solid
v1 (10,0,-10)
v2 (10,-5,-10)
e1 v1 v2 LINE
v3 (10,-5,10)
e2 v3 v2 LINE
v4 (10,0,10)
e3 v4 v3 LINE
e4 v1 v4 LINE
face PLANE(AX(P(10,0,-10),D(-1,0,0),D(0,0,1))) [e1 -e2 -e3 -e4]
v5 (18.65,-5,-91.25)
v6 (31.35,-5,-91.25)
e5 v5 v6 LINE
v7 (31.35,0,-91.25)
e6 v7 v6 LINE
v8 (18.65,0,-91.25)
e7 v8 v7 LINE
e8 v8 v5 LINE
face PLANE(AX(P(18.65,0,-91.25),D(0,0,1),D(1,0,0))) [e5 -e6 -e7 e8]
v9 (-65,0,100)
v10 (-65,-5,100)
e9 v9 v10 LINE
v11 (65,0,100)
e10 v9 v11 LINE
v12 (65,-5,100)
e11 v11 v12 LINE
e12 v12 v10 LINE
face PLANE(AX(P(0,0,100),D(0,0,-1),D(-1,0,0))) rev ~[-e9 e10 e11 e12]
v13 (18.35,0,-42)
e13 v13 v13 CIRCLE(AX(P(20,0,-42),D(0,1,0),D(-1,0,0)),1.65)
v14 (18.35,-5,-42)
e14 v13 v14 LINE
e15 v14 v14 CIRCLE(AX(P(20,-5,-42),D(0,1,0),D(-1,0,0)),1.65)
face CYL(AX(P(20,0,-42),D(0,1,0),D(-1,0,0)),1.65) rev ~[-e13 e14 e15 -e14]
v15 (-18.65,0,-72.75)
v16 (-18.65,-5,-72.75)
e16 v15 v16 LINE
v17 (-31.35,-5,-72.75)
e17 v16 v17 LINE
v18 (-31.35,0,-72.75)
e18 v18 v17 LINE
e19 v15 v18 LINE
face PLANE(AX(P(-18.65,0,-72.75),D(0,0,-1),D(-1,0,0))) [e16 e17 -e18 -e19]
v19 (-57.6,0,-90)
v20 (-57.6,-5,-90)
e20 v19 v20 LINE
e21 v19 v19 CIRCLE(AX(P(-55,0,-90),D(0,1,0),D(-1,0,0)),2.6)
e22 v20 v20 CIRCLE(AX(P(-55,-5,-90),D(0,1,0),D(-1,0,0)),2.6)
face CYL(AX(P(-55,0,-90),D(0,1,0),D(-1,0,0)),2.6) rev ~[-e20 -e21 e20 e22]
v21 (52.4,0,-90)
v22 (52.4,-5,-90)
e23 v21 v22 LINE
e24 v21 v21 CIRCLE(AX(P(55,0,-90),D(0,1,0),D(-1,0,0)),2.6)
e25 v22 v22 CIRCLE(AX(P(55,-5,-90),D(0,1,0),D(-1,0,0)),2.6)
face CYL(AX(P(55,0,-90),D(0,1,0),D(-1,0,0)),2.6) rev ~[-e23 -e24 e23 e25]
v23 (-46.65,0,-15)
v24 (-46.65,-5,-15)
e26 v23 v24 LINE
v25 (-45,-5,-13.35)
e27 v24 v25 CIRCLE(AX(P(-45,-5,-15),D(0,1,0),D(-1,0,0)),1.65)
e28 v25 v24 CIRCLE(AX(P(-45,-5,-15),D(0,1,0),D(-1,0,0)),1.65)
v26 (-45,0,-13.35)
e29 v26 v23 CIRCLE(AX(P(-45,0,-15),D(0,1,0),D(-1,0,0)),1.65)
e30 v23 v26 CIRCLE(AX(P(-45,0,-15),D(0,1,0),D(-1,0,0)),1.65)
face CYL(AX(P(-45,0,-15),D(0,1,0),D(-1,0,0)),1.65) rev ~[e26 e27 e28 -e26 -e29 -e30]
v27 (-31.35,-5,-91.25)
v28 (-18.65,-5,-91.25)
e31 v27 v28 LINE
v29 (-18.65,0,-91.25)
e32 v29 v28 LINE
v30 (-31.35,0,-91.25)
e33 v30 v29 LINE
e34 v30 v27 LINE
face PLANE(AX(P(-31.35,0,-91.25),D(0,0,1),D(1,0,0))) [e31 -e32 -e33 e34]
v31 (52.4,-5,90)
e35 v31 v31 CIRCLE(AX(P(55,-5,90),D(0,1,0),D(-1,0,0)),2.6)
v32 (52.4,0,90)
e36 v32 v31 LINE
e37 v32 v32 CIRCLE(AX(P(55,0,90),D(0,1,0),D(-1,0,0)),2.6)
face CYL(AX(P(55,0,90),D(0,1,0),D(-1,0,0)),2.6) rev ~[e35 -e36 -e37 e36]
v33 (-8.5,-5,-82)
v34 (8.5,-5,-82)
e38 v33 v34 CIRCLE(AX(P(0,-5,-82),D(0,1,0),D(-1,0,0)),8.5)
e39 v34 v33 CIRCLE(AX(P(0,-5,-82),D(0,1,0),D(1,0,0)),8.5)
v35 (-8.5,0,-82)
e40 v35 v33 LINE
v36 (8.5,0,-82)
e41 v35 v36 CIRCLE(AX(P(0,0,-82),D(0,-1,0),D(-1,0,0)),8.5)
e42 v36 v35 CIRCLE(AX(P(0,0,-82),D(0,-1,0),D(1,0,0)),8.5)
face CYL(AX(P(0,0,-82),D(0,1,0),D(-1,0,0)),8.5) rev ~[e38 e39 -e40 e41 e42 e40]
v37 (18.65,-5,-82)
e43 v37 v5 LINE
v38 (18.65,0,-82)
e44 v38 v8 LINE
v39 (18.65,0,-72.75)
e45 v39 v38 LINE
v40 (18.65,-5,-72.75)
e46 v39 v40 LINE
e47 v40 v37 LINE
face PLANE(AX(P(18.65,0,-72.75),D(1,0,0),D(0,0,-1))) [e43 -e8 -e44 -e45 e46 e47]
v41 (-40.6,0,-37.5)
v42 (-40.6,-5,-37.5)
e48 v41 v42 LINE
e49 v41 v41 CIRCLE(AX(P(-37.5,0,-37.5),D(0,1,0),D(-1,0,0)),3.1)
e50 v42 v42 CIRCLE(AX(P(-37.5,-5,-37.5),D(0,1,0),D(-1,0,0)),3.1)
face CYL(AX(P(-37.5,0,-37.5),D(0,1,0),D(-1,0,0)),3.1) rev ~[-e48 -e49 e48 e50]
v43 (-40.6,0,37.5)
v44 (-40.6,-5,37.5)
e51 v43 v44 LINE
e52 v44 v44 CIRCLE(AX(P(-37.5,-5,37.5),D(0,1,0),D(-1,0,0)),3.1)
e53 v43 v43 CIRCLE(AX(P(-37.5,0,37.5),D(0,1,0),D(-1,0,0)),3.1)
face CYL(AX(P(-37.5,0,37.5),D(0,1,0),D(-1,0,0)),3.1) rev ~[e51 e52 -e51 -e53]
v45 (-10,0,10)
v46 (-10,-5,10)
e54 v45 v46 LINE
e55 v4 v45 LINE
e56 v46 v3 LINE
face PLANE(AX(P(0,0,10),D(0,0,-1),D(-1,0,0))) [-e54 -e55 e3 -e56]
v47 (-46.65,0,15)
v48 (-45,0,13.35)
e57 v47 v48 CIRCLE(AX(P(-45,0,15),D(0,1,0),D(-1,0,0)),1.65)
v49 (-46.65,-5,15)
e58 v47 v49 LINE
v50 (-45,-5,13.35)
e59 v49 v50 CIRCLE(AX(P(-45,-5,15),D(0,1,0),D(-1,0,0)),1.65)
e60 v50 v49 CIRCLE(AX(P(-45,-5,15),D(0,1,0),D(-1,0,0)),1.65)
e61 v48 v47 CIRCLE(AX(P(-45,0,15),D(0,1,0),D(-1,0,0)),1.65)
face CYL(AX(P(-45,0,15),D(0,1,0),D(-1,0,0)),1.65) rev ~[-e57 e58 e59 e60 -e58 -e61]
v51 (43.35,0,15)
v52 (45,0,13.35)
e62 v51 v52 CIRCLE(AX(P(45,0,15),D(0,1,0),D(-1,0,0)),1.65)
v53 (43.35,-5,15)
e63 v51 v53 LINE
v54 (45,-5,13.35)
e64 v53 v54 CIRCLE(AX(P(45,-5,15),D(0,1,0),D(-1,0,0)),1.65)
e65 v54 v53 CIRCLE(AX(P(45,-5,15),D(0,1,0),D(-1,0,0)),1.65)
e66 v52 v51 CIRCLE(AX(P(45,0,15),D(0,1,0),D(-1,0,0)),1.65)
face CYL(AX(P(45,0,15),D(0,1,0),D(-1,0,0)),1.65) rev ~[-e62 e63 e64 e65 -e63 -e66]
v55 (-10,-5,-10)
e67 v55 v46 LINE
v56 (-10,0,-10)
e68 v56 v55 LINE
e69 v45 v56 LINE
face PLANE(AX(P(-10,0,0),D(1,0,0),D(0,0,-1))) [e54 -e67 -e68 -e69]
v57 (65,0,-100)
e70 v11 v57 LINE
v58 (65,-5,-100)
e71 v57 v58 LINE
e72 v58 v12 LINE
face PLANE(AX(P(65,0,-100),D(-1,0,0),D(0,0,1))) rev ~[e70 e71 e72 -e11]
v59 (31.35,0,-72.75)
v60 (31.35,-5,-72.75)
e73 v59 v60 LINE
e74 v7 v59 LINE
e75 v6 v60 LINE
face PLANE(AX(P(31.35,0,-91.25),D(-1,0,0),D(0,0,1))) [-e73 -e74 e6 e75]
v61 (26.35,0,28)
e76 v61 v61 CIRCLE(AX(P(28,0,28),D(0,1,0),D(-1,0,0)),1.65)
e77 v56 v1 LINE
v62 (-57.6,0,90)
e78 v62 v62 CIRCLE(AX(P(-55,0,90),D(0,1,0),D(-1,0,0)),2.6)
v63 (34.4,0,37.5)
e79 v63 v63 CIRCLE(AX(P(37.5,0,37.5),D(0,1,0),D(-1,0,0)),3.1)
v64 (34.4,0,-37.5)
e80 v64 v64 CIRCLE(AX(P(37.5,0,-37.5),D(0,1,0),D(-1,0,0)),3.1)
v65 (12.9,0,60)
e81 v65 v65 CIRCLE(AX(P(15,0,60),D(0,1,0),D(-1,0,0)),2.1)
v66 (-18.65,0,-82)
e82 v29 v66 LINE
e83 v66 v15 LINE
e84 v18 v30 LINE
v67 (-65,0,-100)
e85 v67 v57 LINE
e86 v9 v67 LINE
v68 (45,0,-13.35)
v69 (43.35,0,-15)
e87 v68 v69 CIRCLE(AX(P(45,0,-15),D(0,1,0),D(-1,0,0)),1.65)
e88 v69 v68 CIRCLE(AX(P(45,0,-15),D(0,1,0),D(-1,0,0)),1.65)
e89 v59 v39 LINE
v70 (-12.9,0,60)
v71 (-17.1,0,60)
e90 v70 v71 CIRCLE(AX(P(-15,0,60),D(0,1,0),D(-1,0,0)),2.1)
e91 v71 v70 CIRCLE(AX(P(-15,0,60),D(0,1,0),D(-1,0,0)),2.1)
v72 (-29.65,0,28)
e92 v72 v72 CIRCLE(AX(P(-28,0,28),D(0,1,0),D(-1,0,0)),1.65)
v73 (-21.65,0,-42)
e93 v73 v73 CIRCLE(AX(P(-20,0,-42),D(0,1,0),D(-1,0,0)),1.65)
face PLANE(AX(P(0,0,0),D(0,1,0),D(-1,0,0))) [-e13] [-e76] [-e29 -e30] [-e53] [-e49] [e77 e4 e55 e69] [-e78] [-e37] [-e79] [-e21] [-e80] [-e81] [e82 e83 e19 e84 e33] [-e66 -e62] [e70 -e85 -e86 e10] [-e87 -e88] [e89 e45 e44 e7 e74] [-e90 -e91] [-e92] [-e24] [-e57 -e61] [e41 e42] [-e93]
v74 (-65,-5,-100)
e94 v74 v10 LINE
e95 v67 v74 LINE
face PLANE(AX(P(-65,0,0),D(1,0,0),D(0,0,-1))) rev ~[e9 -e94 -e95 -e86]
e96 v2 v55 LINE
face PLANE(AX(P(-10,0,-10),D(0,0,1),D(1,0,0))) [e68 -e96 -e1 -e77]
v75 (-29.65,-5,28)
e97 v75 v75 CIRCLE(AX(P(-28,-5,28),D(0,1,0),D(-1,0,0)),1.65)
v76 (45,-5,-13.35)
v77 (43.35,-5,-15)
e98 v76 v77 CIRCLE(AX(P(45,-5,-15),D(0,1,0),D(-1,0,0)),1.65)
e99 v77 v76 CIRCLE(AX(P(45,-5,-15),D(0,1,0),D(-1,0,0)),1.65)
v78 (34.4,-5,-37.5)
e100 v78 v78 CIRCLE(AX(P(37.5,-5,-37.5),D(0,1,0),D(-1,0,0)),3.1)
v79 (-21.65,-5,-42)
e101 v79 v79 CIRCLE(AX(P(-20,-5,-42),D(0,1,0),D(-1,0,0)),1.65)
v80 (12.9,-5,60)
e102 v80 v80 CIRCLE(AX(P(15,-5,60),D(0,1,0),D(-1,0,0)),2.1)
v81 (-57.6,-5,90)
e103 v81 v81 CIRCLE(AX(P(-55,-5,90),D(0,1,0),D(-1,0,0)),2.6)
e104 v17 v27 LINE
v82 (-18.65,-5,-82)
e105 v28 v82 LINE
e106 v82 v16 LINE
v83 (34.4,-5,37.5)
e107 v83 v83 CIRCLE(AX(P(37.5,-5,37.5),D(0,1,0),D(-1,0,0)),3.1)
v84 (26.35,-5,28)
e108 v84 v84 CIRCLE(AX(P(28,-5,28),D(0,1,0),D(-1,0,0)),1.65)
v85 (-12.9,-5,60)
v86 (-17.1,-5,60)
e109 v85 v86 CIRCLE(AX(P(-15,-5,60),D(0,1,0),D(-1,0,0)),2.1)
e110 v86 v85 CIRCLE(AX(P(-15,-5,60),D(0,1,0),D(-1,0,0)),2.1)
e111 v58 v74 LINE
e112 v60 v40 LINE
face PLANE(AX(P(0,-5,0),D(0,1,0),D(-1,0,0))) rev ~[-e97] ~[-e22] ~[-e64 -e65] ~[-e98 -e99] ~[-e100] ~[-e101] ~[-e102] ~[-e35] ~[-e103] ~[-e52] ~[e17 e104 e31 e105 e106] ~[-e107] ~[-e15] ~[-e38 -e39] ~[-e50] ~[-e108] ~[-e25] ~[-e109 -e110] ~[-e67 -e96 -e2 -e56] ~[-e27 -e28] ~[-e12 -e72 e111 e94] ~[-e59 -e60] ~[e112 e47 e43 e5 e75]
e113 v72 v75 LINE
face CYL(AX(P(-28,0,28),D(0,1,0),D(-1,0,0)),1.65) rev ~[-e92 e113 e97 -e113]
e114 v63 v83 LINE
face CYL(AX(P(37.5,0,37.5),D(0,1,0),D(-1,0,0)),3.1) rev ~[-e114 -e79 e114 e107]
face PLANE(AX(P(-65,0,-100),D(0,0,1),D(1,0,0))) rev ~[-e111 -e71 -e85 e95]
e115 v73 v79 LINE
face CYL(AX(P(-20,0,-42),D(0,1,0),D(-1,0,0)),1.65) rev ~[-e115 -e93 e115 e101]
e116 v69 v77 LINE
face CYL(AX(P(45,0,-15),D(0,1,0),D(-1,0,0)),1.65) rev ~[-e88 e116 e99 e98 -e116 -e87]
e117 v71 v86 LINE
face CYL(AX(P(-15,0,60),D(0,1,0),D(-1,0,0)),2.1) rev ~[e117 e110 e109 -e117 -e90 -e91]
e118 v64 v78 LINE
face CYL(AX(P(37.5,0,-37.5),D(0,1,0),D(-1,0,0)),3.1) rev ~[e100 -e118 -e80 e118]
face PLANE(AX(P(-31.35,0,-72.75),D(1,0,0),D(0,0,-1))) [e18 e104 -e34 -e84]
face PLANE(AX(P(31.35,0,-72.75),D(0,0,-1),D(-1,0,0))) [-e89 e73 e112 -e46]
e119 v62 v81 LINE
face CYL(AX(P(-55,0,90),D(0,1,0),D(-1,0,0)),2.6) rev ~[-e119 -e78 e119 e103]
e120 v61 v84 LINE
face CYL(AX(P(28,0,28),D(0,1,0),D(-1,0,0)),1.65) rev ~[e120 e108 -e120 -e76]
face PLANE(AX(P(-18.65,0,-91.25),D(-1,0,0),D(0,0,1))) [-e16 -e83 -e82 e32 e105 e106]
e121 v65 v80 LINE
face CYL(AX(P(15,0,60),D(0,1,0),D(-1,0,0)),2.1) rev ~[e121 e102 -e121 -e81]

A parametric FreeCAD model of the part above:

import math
import FreeCAD as App
import Part
import Sketcher
from FreeCAD import Vector


def add_polygon(sketch, points):
    """Adds a closed chain of lines whose ends are joined by coincident constraints."""
    first, n = sketch.GeometryCount, len(points)
    for a, b in zip(points, points[1:] + points[:1]):
        sketch.addGeometry(Part.LineSegment(App.Vector(*a, 0), App.Vector(*b, 0)), False)
    for i in range(n):
        sketch.addConstraint(Sketcher.Constraint("Coincident", first + i, 2, first + (i + 1) % n, 1))

doc = App.newDocument("Part")
body = doc.addObject("PartDesign::Body", "Body")

# Sketch on XZ plane
sketch1 = doc.addObject("Sketcher::SketchObject", "Sketch")
body.addObject(sketch1)
sketch1.AttachmentSupport = (doc.XZ_Plane, [""])
sketch1.MapMode = "FlatFace"
add_polygon(sketch1, [(-65, -100), (-65, 100), (65, 100), (65, -100)])  # lines 0-3
sketch1.addGeometry(Part.ArcOfCircle(Part.Circle(Vector(0, -82, 0), Vector(0, 0, 1), 8.5), math.radians(180), math.radians(360)), False)  # 4
sketch1.addGeometry(Part.ArcOfCircle(Part.Circle(Vector(0, -82, 0), Vector(0, 0, 1), 8.5), math.radians(0), math.radians(180)), False)  # 5
add_polygon(sketch1, [(-10, -10), (10, -10), (10, 10), (-10, 10)])  # lines 6-9
add_polygon(sketch1, [(-18.65, -91.25), (-18.65, -82), (-18.65, -72.75), (-31.35, -72.75), (-31.35, -91.25)])  # lines 10-14
sketch1.addGeometry(Part.Circle(Vector(-55, -90, 0), Vector(0, 0, 1), 2.6), False)  # 15
sketch1.addGeometry(Part.Circle(Vector(-20, -42, 0), Vector(0, 0, 1), 1.65), False)  # 16
sketch1.addGeometry(Part.Circle(Vector(-37.5, -37.5, 0), Vector(0, 0, 1), 3.1), False)  # 17
sketch1.addGeometry(Part.Circle(Vector(-45, -15, 0), Vector(0, 0, 1), 1.65), False)  # 18
sketch1.addGeometry(Part.Circle(Vector(55, -90, 0), Vector(0, 0, 1), 2.6), False)  # 19
add_polygon(sketch1, [(18.65, -72.75), (18.65, -82), (18.65, -91.25), (31.35, -91.25), (31.35, -72.75)])  # lines 20-24
sketch1.addGeometry(Part.Circle(Vector(37.5, -37.5, 0), Vector(0, 0, 1), 3.1), False)  # 25
sketch1.addGeometry(Part.Circle(Vector(45, -15, 0), Vector(0, 0, 1), 1.65), False)  # 26
sketch1.addGeometry(Part.Circle(Vector(20, -42, 0), Vector(0, 0, 1), 1.65), False)  # 27
sketch1.addGeometry(Part.Circle(Vector(-28, 28, 0), Vector(0, 0, 1), 1.65), False)  # 28
sketch1.addGeometry(Part.Circle(Vector(-45, 15, 0), Vector(0, 0, 1), 1.65), False)  # 29
sketch1.addGeometry(Part.Circle(Vector(-37.5, 37.5, 0), Vector(0, 0, 1), 3.1), False)  # 30
sketch1.addGeometry(Part.Circle(Vector(-15, 60, 0), Vector(0, 0, 1), 2.1), False)  # 31
sketch1.addGeometry(Part.Circle(Vector(-55, 90, 0), Vector(0, 0, 1), 2.6), False)  # 32
sketch1.addGeometry(Part.Circle(Vector(55, 90, 0), Vector(0, 0, 1), 2.6), False)  # 33
sketch1.addGeometry(Part.Circle(Vector(15, 60, 0), Vector(0, 0, 1), 2.1), False)  # 34
sketch1.addGeometry(Part.Circle(Vector(45, 15, 0), Vector(0, 0, 1), 1.65), False)  # 35
sketch1.addGeometry(Part.Circle(Vector(37.5, 37.5, 0), Vector(0, 0, 1), 3.1), False)  # 36
sketch1.addGeometry(Part.Circle(Vector(28, 28, 0), Vector(0, 0, 1), 1.65), False)  # 37
sketch1.addConstraint([
    Sketcher.Constraint("Tangent", 4, 1, 5, 2),
    Sketcher.Constraint("Coincident", 5, 1, 4, 2),
    Sketcher.Constraint("Vertical", 0),
    Sketcher.Constraint("Horizontal", 1),
    Sketcher.Constraint("Vertical", 2),
    Sketcher.Constraint("Horizontal", 3),
    Sketcher.Constraint("Horizontal", 6),
    Sketcher.Constraint("Vertical", 7),
    Sketcher.Constraint("Horizontal", 8),
    Sketcher.Constraint("Vertical", 9),
    Sketcher.Constraint("Vertical", 10),
    Sketcher.Constraint("Vertical", 11),
    Sketcher.Constraint("Horizontal", 12),
    Sketcher.Constraint("Vertical", 13),
    Sketcher.Constraint("Horizontal", 14),
    Sketcher.Constraint("Vertical", 20),
    Sketcher.Constraint("Vertical", 21),
    Sketcher.Constraint("Horizontal", 22),
    Sketcher.Constraint("Vertical", 23),
    Sketcher.Constraint("Horizontal", 24),
    Sketcher.Constraint("Equal", 16, 18),
    Sketcher.Constraint("Equal", 15, 19),
    Sketcher.Constraint("Equal", 17, 25),
    Sketcher.Constraint("Equal", 18, 26),
    Sketcher.Constraint("Equal", 26, 27),
    Sketcher.Constraint("Equal", 27, 28),
    Sketcher.Constraint("Equal", 28, 29),
    Sketcher.Constraint("Equal", 25, 30),
    Sketcher.Constraint("Equal", 19, 32),
    Sketcher.Constraint("Equal", 32, 33),
    Sketcher.Constraint("Equal", 31, 34),
    Sketcher.Constraint("Equal", 29, 35),
    Sketcher.Constraint("Equal", 30, 36),
    Sketcher.Constraint("Equal", 35, 37),
    Sketcher.Constraint("Symmetric", 26, 3, 29, 3, -1, 1),
    Sketcher.Constraint("Symmetric", 25, 3, 30, 3, -1, 1),
    Sketcher.Constraint("Symmetric", 19, 3, 32, 3, -1, 1),
    Sketcher.Constraint("Symmetric", 15, 3, 33, 3, -1, 1),
    Sketcher.Constraint("Symmetric", 18, 3, 35, 3, -1, 1),
    Sketcher.Constraint("Symmetric", 17, 3, 36, 3, -1, 1),
    Sketcher.Constraint("Symmetric", 0, 2, 2, 2, -1, 1),
    Sketcher.Constraint("Symmetric", 6, 2, 8, 2, -1, 1),
    Sketcher.Constraint("Symmetric", 15, 3, 19, 3, -2),
    Sketcher.Constraint("Symmetric", 17, 3, 25, 3, -2),
    Sketcher.Constraint("Symmetric", 18, 3, 26, 3, -2),
    Sketcher.Constraint("Symmetric", 16, 3, 27, 3, -2),
    Sketcher.Constraint("Symmetric", 31, 3, 34, 3, -2),
    Sketcher.Constraint("Symmetric", 28, 3, 37, 3, -2),
    Sketcher.Constraint("Symmetric", 4, 1, 5, 1, -2),
    Sketcher.Constraint("Symmetric", 10, 2, 20, 2, -2),
    Sketcher.Constraint("Symmetric", 13, 2, 22, 2, -2),
    Sketcher.Constraint("Horizontal", 5, 3, 4, 1),
    Sketcher.Constraint("Horizontal", 5, 1, 10, 2),
    Sketcher.Constraint("Horizontal", 12, 2, 23, 2),
    Sketcher.Constraint("Equal", 8, 7),
    Sketcher.Constraint("Equal", 10, 11),
    Sketcher.Constraint("Diameter", 15, 5.2),
    Sketcher.Constraint("Diameter", 16, 3.3),
    Sketcher.Constraint("Diameter", 17, 6.2),
    Sketcher.Constraint("Diameter", 31, 4.2),
    Sketcher.Constraint("Radius", 4, 8.5),
    Sketcher.Constraint("DistanceX", 1, 1, 1, 2, 130.0),
    Sketcher.Constraint("DistanceX", 6, 1, 6, 2, 20.0),
    Sketcher.Constraint("DistanceY", 0, 1, 0, 2, 200.0),
    Sketcher.Constraint("DistanceX", 12, 2, 12, 1, 12.7),
    Sketcher.Constraint("DistanceY", 13, 2, 13, 1, 18.5),
    Sketcher.Constraint("DistanceX", 16, 3, -1, 1, 20.0),
    Sketcher.Constraint("DistanceY", 4, 3, 16, 3, 40.0),
    Sketcher.Constraint("DistanceX", 18, 3, 16, 3, 25.0),
    Sketcher.Constraint("DistanceX", 15, 3, 18, 3, 10.0),
    Sketcher.Constraint("DistanceY", 15, 3, 18, 3, 75.0),
    Sketcher.Constraint("DistanceX", 17, 3, 25, 3, 75.0),
    Sketcher.Constraint("DistanceX", 18, 3, 28, 3, 17.0),
    Sketcher.Constraint("DistanceY", 18, 3, 29, 3, 30.0),
    Sketcher.Constraint("DistanceY", 17, 3, 30, 3, 75.0),
    Sketcher.Constraint("DistanceX", 29, 3, 31, 3, 30.0),
    Sketcher.Constraint("DistanceY", 18, 3, 31, 3, 75.0),
    Sketcher.Constraint("DistanceY", 2, 2, 4, 3, 18.0),
    Sketcher.Constraint("DistanceY", 7, 2, 37, 3, 18.0),
    Sketcher.Constraint("DistanceX", 10, 2, -1, 1, 18.65),
])
pad1 = doc.addObject("PartDesign::Pad", "Pad")
body.addObject(pad1)
pad1.Profile = sketch1
pad1.Length = 5

doc.recompute()
